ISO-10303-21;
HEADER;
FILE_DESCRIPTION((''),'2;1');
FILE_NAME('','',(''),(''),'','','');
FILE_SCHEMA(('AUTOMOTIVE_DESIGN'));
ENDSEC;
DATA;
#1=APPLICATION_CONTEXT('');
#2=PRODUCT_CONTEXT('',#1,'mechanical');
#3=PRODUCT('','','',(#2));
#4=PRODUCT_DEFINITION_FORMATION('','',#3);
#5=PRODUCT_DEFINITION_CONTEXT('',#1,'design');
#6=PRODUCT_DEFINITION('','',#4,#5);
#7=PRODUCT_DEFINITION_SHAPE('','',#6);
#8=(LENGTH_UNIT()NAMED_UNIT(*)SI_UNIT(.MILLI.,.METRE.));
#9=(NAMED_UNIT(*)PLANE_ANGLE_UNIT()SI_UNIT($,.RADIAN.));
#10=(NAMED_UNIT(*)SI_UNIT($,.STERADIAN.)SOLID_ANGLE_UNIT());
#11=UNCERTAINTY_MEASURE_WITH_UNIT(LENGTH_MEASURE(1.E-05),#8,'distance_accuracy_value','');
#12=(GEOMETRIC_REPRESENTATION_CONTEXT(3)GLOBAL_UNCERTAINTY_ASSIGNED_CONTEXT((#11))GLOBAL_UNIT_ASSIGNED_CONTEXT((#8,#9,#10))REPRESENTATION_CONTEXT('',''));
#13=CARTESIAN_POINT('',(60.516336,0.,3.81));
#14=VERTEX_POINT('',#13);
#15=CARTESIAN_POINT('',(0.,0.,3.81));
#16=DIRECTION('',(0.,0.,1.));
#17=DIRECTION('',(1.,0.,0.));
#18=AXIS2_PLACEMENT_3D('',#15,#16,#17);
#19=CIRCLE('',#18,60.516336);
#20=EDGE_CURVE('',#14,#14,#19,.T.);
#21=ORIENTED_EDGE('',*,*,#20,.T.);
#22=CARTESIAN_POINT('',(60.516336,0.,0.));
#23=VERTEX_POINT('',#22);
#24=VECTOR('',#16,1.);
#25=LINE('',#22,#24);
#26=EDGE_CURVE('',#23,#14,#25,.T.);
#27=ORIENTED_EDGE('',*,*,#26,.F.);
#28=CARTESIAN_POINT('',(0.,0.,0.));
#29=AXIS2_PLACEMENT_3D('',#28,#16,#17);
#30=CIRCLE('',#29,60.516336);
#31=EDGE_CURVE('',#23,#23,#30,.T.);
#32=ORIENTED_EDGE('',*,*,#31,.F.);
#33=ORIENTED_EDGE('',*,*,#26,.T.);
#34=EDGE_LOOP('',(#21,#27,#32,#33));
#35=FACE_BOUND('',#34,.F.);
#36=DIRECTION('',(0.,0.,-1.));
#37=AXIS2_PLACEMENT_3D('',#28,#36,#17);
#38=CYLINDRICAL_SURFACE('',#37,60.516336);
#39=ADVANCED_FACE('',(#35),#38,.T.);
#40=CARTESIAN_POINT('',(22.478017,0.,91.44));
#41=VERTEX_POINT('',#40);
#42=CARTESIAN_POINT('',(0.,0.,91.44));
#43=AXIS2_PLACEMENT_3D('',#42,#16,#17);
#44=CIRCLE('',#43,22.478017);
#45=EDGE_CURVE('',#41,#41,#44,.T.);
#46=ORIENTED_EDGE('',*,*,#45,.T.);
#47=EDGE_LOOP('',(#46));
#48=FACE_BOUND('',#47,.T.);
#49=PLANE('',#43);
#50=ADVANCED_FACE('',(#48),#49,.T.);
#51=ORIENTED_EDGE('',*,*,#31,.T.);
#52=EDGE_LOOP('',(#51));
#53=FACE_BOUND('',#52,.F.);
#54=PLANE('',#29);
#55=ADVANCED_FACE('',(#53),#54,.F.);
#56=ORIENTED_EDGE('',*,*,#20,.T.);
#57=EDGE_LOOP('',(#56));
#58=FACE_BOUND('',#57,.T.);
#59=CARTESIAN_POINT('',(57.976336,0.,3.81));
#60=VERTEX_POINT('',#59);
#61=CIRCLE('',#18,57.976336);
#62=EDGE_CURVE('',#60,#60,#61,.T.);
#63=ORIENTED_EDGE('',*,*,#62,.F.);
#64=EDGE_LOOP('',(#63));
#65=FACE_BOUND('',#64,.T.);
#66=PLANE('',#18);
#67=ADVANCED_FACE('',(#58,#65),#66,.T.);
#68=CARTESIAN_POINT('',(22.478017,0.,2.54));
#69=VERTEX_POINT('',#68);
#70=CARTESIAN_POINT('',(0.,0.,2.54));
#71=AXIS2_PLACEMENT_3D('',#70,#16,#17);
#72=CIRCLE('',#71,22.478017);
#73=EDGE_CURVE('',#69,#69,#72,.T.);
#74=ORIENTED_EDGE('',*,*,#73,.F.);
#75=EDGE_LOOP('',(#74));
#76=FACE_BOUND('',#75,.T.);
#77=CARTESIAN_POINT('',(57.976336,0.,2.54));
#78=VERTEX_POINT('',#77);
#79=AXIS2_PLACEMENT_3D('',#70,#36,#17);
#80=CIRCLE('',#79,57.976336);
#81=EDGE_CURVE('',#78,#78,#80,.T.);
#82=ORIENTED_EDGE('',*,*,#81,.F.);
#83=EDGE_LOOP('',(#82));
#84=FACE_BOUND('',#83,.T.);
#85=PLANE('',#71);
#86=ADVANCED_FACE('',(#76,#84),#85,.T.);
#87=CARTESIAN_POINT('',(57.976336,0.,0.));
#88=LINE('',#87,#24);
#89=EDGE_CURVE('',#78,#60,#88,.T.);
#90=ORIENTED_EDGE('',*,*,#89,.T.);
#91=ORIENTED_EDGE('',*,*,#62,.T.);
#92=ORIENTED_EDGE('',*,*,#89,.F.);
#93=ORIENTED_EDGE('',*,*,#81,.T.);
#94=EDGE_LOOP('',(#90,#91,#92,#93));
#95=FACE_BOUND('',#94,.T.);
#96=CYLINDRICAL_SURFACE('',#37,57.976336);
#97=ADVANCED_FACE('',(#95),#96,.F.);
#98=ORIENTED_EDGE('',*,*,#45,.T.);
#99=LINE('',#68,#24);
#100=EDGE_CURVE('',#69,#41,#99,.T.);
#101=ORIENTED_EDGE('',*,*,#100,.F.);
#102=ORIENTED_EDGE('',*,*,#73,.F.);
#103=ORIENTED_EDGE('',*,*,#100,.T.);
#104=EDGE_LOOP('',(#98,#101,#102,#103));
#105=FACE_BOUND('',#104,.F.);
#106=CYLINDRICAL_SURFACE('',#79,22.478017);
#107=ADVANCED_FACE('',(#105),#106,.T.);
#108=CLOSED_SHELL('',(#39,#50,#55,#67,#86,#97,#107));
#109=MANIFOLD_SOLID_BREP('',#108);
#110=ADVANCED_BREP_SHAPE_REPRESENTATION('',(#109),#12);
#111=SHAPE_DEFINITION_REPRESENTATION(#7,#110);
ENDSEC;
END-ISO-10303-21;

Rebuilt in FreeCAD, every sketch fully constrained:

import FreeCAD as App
import Part
import Sketcher
Q = App.Units.Quantity


def faces_at(feature, points):
    """Names of the faces that lie closest to the given points."""
    faces = feature.Shape.Faces
    near = lambda p: min(range(len(faces)), key=lambda i: faces[i].distToShape(Part.Vertex(*p))[0])
    return sorted({f"Face{near(p) + 1}" for p in points})

doc = App.newDocument("Part")
body = doc.addObject("PartDesign::Body", "Body")

# Sketch on XY plane
sketch1 = body.newObject("Sketcher::SketchObject", "Sketch")
sketch1.AttachmentSupport = (doc.getObject("XY_Plane"), [""])
sketch1.MapMode = "FlatFace"
sketch1.addGeometry(Part.Circle(App.Vector(0, 0, 0), App.Vector(0, 0, 1), 61), False)
sketch1.addConstraint([
    Sketcher.Constraint("Coincident", 0, 3, -1, 1),
    Sketcher.Constraint("Diameter", 0, 121.032672),
])
pad1 = body.newObject("PartDesign::Pad", "Pad")
pad1.Profile = sketch1
pad1.Length = Q("0.15 in")
doc.recompute()

thickness = body.newObject("PartDesign::Thickness", "Thickness")
thickness.Base = (pad1, faces_at(pad1, [(0, 0, 3.81)]))
thickness.Value = Q("0.1 in")
thickness.Reversed = True
thickness.Join = "Arc"

# Sketch on XY plane
sketch2 = body.newObject("Sketcher::SketchObject", "Sketch001")
sketch2.AttachmentSupport = (doc.getObject("XY_Plane"), [""])
sketch2.MapMode = "FlatFace"
sketch2.AttachmentOffset = App.Placement(App.Vector(0, 0, 0.1 * 25.4), App.Rotation())
sketch2.addGeometry(Part.Circle(App.Vector(0, 0, 0), App.Vector(0, 0, 1), 22), False)
sketch2.addConstraint([
    Sketcher.Constraint("Coincident", 0, 3, -1, 1),
    Sketcher.Constraint("Diameter", 0, 44.956034),
])
pad2 = body.newObject("PartDesign::Pad", "Pad001")
pad2.Profile = sketch2
pad2.Length = Q("3.5 in")

doc.recompute()
